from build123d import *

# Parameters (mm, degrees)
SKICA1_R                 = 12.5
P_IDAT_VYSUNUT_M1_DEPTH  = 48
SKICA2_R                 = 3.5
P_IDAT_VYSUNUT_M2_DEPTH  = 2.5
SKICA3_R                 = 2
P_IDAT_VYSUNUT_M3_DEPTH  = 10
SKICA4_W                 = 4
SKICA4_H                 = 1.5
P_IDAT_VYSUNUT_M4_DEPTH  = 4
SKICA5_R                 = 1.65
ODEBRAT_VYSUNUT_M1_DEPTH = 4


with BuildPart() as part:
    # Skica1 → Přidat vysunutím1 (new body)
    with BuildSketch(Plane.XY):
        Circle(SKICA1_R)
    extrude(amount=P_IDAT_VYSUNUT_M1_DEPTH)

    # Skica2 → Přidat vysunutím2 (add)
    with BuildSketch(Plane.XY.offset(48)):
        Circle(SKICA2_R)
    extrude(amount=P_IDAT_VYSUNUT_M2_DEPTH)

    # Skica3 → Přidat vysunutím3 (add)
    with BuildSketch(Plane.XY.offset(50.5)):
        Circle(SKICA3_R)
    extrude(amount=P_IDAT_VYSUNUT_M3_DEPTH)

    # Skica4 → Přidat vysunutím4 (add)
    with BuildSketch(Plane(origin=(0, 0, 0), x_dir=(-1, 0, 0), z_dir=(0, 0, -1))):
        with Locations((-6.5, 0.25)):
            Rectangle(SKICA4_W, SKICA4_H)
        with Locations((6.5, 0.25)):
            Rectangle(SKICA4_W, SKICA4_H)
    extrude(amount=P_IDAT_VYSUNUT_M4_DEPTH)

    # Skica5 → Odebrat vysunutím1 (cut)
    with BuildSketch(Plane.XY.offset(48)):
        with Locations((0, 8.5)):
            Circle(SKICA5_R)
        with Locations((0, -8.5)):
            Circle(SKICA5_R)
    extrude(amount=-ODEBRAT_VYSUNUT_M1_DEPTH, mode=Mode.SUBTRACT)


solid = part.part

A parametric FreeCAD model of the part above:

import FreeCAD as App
import Part
import Sketcher
Q = App.Units.Quantity

doc = App.newDocument("Part")
params = doc.addObject("Spreadsheet::Sheet", "Params")
for row, (alias, value) in enumerate([
    ("sketch1_diameter", "25 mm"),
    ("pad1_length", "48 mm"),
    ("sketch2_diameter", "7 mm"),
    ("pad2_length", "2.5 mm"),
    ("sketch3_diameter", "4 mm"),
    ("pad3_length", "10 mm"),
    ("sketch4_width", "4 mm"),
    ("sketch4_height", "1.5 mm"),
    ("pad4_length", "4 mm"),
    ("sketch5_diameter", "3.3 mm"),
    ("pocket1_length", "4 mm"),
], start=1):
    params.set(f"A{row}", alias)
    params.set(f"B{row}", "=" + value)
    params.setAlias(f"B{row}", alias)

body = doc.addObject("PartDesign::Body", "Body")

sketch1 = body.newObject("Sketcher::SketchObject", "Sketch")
sketch1.AttachmentSupport = (doc.getObject("XY_Plane"), [""])
sketch1.MapMode = "FlatFace"
sketch1.addGeometry(Part.Circle(App.Vector(0, 0, 0), App.Vector(0, 0, 1), 12), False)
sketch1.addConstraint(Sketcher.Constraint("Coincident", 0, 3, -1, 1))
sketch1.addConstraint(Sketcher.Constraint("Diameter", 0, Q("25 mm")))
sketch1.setExpression("Constraints[1]", "Params.sketch1_diameter")
pad1 = body.newObject("PartDesign::Pad", "Pad")
pad1.Profile = sketch1
pad1.setExpression("Length", "Params.pad1_length")

sketch2 = body.newObject("Sketcher::SketchObject", "Sketch001")
sketch2.AttachmentSupport = (doc.getObject("XY_Plane"), [""])
sketch2.MapMode = "FlatFace"
sketch2.AttachmentOffset = App.Placement(App.Vector(0, 0, 48), App.Rotation())
sketch2.addGeometry(Part.Circle(App.Vector(0, 0, 0), App.Vector(0, 0, 1), 3.5), False)
sketch2.addConstraint(Sketcher.Constraint("Coincident", 0, 3, -1, 1))
sketch2.addConstraint(Sketcher.Constraint("Diameter", 0, Q("7 mm")))
sketch2.setExpression("Constraints[1]", "Params.sketch2_diameter")
pad2 = body.newObject("PartDesign::Pad", "Pad001")
pad2.Profile = sketch2
pad2.setExpression("Length", "Params.pad2_length")

sketch3 = body.newObject("Sketcher::SketchObject", "Sketch002")
sketch3.AttachmentSupport = (doc.getObject("XY_Plane"), [""])
sketch3.MapMode = "FlatFace"
sketch3.AttachmentOffset = App.Placement(App.Vector(0, 0, 50.5), App.Rotation())
sketch3.addGeometry(Part.Circle(App.Vector(0, 0, 0), App.Vector(0, 0, 1), 2), False)
sketch3.addConstraint(Sketcher.Constraint("Coincident", 0, 3, -1, 1))
sketch3.addConstraint(Sketcher.Constraint("Diameter", 0, Q("4 mm")))
sketch3.setExpression("Constraints[1]", "Params.sketch3_diameter")
pad3 = body.newObject("PartDesign::Pad", "Pad002")
pad3.Profile = sketch3
pad3.setExpression("Length", "Params.pad3_length")

sketch4 = body.newObject("Sketcher::SketchObject", "Sketch003")
sketch4.AttachmentSupport = (doc.getObject("XY_Plane"), [""])
sketch4.MapMode = "FlatFace"
sketch4.addGeometry(Part.LineSegment(App.Vector(8.5, 1, 0), App.Vector(8.5, -0.5, 0)), False)
sketch4.addGeometry(Part.LineSegment(App.Vector(8.5, -0.5, 0), App.Vector(4.5, -0.5, 0)), False)
sketch4.addGeometry(Part.LineSegment(App.Vector(4.5, -0.5, 0), App.Vector(4.5, 1, 0)), False)
sketch4.addGeometry(Part.LineSegment(App.Vector(4.5, 1, 0), App.Vector(8.5, 1, 0)), False)
sketch4.addGeometry(Part.LineSegment(App.Vector(-4.5, 1, 0), App.Vector(-4.5, -0.5, 0)), False)
sketch4.addGeometry(Part.LineSegment(App.Vector(-4.5, -0.5, 0), App.Vector(-8.5, -0.5, 0)), False)
sketch4.addGeometry(Part.LineSegment(App.Vector(-8.5, -0.5, 0), App.Vector(-8.5, 1, 0)), False)
sketch4.addGeometry(Part.LineSegment(App.Vector(-8.5, 1, 0), App.Vector(-4.5, 1, 0)), False)
sketch4.addConstraint(Sketcher.Constraint("Coincident", 0, 2, 1, 1))
sketch4.addConstraint(Sketcher.Constraint("Coincident", 1, 2, 2, 1))
sketch4.addConstraint(Sketcher.Constraint("Coincident", 2, 2, 3, 1))
sketch4.addConstraint(Sketcher.Constraint("Coincident", 3, 2, 0, 1))
sketch4.addConstraint(Sketcher.Constraint("Coincident", 4, 2, 5, 1))
sketch4.addConstraint(Sketcher.Constraint("Coincident", 5, 2, 6, 1))
sketch4.addConstraint(Sketcher.Constraint("Coincident", 6, 2, 7, 1))
sketch4.addConstraint(Sketcher.Constraint("Coincident", 7, 2, 4, 1))
sketch4.addConstraint(Sketcher.Constraint("Vertical", 0))
sketch4.addConstraint(Sketcher.Constraint("Horizontal", 1))
sketch4.addConstraint(Sketcher.Constraint("Vertical", 2))
sketch4.addConstraint(Sketcher.Constraint("Horizontal", 3))
sketch4.addConstraint(Sketcher.Constraint("Vertical", 4))
sketch4.addConstraint(Sketcher.Constraint("Horizontal", 5))
sketch4.addConstraint(Sketcher.Constraint("Vertical", 6))
sketch4.addConstraint(Sketcher.Constraint("Horizontal", 7))
sketch4.addConstraint(Sketcher.Constraint("Symmetric", 1, 2, 4, 2, -2))
sketch4.addConstraint(Sketcher.Constraint("Symmetric", 3, 2, 6, 2, -2))
sketch4.addConstraint(Sketcher.Constraint("DistanceX", 1, 2, 1, 1, Q("4 mm")))
sketch4.addConstraint(Sketcher.Constraint("DistanceY", 0, 2, 0, 1, Q("1.5 mm")))
sketch4.addConstraint(Sketcher.Constraint("DistanceY", -1, 1, 2, 2, Q("1 mm")))
sketch4.addConstraint(Sketcher.Constraint("DistanceX", 4, 2, 1, 2, Q("9 mm")))
sketch4.setExpression("Constraints[18]", "Params.sketch4_width")
sketch4.setExpression("Constraints[19]", "Params.sketch4_height")
pad4 = body.newObject("PartDesign::Pad", "Pad003")
pad4.Profile = sketch4
pad4.setExpression("Length", "Params.pad4_length")
pad4.Reversed = True

sketch5 = body.newObject("Sketcher::SketchObject", "Sketch004")
sketch5.AttachmentSupport = (doc.getObject("XY_Plane"), [""])
sketch5.MapMode = "FlatFace"
sketch5.AttachmentOffset = App.Placement(App.Vector(0, 0, 48), App.Rotation())
sketch5.addGeometry(Part.Circle(App.Vector(0, 8.5, 0), App.Vector(0, 0, 1), 1.6), False)
sketch5.addGeometry(Part.Circle(App.Vector(0, -8.5, 0), App.Vector(0, 0, 1), 1.6), False)
sketch5.addConstraint(Sketcher.Constraint("Equal", 0, 1))
sketch5.addConstraint(Sketcher.Constraint("Symmetric", 0, 3, 1, 3, -1, 1))
sketch5.addConstraint(Sketcher.Constraint("PointOnObject", 0, 3, -2))
sketch5.addConstraint(Sketcher.Constraint("Diameter", 0, Q("3.3 mm")))
sketch5.addConstraint(Sketcher.Constraint("DistanceY", 1, 3, 0, 3, Q("17 mm")))
sketch5.setExpression("Constraints[3]", "Params.sketch5_diameter")
pocket1 = body.newObject("PartDesign::Pocket", "Pocket")
pocket1.Profile = sketch5
pocket1.setExpression("Length", "Params.pocket1_length")

doc.recompute()
